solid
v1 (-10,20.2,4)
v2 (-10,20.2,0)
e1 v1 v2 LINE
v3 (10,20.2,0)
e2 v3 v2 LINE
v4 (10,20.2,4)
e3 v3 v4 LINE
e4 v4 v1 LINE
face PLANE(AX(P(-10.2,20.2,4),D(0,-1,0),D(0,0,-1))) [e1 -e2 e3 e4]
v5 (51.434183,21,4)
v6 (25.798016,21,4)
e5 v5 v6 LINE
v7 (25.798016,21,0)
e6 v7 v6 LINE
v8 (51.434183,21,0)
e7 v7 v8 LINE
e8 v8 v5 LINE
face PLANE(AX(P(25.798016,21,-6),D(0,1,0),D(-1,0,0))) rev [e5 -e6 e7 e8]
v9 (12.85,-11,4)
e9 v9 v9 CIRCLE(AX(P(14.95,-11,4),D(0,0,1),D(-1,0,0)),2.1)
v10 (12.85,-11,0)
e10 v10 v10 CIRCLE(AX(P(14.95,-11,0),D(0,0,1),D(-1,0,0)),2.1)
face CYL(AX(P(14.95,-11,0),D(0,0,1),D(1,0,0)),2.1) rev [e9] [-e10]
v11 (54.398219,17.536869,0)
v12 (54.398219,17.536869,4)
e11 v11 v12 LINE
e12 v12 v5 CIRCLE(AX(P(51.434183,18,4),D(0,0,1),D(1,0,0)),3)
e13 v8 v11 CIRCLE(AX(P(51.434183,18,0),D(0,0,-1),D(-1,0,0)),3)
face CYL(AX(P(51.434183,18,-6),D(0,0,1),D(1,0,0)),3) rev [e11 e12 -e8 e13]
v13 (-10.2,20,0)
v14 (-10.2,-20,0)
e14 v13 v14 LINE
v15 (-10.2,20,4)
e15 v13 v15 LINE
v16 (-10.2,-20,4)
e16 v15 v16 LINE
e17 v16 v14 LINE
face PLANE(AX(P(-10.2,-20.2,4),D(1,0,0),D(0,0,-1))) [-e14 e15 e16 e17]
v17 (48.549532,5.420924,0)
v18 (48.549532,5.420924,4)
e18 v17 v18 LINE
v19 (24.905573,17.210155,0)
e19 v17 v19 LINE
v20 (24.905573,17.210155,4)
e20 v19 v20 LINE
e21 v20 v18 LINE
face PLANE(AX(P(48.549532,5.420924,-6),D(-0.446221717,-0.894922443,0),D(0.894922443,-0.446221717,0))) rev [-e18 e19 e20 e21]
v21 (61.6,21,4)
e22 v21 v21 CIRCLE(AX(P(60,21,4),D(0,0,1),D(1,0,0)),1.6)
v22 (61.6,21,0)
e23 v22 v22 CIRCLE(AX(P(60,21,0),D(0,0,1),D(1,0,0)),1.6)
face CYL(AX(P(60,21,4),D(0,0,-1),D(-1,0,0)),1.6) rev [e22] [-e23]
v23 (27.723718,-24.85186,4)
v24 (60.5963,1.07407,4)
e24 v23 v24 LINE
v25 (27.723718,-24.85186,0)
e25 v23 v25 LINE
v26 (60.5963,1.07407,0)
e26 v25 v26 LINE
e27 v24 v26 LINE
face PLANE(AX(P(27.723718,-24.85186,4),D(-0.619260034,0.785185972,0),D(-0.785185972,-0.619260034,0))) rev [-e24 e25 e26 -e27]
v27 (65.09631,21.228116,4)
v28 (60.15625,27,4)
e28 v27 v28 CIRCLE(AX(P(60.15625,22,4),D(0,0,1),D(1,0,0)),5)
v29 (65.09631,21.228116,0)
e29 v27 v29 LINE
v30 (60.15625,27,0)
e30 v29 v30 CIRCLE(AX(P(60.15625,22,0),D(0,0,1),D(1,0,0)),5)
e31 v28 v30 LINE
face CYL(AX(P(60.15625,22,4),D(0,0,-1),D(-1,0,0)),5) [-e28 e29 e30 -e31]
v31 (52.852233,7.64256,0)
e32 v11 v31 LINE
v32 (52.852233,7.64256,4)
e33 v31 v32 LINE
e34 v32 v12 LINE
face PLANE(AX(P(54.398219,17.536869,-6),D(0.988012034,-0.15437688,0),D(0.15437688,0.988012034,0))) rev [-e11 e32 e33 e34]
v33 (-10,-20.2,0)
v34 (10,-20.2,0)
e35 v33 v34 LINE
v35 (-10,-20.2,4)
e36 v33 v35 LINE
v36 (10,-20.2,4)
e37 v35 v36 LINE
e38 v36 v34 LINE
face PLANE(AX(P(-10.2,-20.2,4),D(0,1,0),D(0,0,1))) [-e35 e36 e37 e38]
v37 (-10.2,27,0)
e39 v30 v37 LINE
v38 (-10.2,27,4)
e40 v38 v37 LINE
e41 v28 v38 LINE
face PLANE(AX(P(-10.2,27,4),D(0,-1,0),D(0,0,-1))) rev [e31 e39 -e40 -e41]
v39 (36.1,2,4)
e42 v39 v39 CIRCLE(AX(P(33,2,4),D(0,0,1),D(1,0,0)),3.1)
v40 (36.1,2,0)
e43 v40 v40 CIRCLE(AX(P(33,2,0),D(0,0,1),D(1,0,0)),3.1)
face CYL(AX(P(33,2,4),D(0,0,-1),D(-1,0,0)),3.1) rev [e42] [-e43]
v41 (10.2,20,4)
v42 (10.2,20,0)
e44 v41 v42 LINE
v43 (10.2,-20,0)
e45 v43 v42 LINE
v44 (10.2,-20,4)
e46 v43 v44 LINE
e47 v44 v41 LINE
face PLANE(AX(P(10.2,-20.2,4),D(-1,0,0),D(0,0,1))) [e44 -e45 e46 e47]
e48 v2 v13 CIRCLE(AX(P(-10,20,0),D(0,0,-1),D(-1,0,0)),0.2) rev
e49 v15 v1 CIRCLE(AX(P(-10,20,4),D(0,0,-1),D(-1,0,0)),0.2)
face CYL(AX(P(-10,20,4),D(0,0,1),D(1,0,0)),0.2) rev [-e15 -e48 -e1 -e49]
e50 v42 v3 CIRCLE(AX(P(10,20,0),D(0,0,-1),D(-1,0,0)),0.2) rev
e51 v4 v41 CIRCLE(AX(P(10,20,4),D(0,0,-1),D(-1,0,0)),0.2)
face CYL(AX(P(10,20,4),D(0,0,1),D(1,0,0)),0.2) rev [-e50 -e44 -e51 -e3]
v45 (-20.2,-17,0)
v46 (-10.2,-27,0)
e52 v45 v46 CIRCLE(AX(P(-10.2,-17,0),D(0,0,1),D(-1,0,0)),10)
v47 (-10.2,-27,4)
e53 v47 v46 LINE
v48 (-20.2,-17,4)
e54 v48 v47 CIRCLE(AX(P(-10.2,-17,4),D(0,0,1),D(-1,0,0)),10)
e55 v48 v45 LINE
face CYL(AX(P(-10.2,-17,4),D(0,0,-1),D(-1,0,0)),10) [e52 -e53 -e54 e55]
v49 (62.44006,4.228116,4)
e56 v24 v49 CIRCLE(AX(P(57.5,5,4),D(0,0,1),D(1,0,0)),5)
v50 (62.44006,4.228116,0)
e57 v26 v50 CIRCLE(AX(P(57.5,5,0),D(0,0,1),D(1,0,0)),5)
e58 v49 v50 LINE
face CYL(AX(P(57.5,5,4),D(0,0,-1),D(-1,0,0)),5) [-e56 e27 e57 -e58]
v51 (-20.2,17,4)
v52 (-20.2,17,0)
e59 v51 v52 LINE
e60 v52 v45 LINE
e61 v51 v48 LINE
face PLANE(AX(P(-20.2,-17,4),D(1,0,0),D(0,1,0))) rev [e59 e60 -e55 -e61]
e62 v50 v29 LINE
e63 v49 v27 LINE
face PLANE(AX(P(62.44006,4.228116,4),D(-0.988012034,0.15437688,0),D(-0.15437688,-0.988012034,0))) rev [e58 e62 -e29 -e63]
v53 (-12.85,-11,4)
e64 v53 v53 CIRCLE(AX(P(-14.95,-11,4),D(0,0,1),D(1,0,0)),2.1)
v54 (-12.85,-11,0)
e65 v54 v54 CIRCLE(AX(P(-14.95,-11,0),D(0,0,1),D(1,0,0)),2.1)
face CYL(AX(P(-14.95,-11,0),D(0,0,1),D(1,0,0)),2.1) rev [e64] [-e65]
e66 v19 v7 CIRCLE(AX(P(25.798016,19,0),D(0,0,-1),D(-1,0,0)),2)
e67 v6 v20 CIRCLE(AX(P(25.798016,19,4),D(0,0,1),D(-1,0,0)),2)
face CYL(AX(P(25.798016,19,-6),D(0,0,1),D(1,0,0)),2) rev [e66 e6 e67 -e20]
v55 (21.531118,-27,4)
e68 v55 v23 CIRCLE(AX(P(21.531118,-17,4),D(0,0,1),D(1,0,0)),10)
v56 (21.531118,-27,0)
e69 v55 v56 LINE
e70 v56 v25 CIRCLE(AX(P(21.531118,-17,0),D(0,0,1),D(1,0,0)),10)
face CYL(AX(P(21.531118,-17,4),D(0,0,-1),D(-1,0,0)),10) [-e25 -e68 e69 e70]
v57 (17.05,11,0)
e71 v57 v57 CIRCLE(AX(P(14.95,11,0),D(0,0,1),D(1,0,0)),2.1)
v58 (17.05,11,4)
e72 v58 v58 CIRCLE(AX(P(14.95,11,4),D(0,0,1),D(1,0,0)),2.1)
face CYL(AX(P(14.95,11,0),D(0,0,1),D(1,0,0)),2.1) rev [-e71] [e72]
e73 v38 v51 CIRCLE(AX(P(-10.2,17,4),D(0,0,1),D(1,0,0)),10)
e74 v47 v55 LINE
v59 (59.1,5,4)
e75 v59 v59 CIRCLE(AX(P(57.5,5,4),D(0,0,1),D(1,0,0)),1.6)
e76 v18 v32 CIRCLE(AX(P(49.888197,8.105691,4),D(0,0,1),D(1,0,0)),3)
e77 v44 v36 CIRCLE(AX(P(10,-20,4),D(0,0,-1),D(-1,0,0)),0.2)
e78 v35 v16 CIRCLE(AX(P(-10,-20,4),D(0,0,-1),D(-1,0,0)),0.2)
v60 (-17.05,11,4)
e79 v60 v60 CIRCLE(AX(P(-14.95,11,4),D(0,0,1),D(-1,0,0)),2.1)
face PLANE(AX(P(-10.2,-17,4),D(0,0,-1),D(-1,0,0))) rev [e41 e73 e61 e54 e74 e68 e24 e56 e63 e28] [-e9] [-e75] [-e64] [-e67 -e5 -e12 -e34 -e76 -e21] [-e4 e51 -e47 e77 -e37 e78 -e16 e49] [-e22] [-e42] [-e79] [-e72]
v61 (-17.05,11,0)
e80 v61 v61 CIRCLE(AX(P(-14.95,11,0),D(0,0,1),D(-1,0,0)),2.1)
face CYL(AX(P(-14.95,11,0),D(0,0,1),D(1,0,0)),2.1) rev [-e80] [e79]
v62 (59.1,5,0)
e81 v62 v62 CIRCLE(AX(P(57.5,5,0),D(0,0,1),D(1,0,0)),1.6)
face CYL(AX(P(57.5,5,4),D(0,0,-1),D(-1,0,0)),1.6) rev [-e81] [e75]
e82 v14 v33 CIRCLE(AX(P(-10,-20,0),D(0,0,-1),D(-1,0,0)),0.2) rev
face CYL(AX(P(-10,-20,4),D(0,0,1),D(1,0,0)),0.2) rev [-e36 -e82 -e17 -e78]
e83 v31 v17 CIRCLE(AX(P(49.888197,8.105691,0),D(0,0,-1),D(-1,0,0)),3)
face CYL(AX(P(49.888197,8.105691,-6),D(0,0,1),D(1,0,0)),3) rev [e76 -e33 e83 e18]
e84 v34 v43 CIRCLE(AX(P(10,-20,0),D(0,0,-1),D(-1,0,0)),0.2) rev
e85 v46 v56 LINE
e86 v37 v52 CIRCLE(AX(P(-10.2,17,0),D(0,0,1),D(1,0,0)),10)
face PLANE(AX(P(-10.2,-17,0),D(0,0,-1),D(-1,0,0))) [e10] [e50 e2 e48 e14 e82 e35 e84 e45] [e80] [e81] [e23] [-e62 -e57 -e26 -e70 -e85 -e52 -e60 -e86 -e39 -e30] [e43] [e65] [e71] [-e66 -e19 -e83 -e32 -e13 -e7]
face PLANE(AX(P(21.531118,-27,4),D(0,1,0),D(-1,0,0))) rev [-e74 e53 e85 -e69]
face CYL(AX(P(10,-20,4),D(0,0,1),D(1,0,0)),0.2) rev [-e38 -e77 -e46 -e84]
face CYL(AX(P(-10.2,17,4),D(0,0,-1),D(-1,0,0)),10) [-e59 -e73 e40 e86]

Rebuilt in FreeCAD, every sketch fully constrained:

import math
import FreeCAD as App
import Part
import Sketcher

V = App.Vector
Q = App.Units.Quantity


def edges_at(feature, points):
    """Names of the edges that pass closest to the given points."""
    edges = feature.Shape.Edges
    near = lambda p: min(range(len(edges)), key=lambda i: edges[i].distToShape(Part.Vertex(*p))[0])
    return sorted({f"Edge{near(p) + 1}" for p in points})

doc = App.newDocument("Part")
body = doc.addObject("PartDesign::Body", "Body")

sketch1 = body.newObject("Sketcher::SketchObject", "Sketch")
sketch1.AttachmentSupport = (doc.getObject("XY_Plane"), [""])
sketch1.MapMode = "FlatFace"
sketch1.addGeometry(Part.LineSegment(V(60.15625, 27, 0), V(-10.2, 27, 0)), False)
sketch1.addGeometry(Part.ArcOfCircle(Part.Circle(V(-10.2, 17, 0), V(0, 0, 1), 10), math.radians(90), math.radians(180)), False)
sketch1.addGeometry(Part.LineSegment(V(-20.2, 17, 0), V(-20.2, -17, 0)), False)
sketch1.addGeometry(Part.ArcOfCircle(Part.Circle(V(-10.2, -17, 0), V(0, 0, 1), 10), math.radians(180), math.radians(270)), False)
sketch1.addGeometry(Part.LineSegment(V(-10.2, -27, 0), V(21.531118, -27, 0)), False)
sketch1.addGeometry(Part.ArcOfCircle(Part.Circle(V(21.531118, -17, 0), V(0, 0, 1), 10), math.radians(-90), math.radians(-51.737882)), False)
sketch1.addGeometry(Part.LineSegment(V(27.723718, -24.85186, 0), V(60.5963, 1.07407, 0)), False)
sketch1.addGeometry(Part.ArcOfCircle(Part.Circle(V(57.5, 5, 0), V(0, 0, 1), 5), math.radians(-51.737882), math.radians(-8.880659)), False)
sketch1.addGeometry(Part.LineSegment(V(62.44006, 4.228116, 0), V(65.09631, 21.228116, 0)), False)
sketch1.addGeometry(Part.ArcOfCircle(Part.Circle(V(60.15625, 22, 0), V(0, 0, 1), 5), math.radians(-8.880659), math.radians(90)), False)
sketch1.addGeometry(Part.LineSegment(V(-10.2, -20.2, 0), V(-10.2, 20.2, 0)), False)
sketch1.addGeometry(Part.LineSegment(V(-10.2, 20.2, 0), V(10.2, 20.2, 0)), False)
sketch1.addGeometry(Part.LineSegment(V(10.2, 20.2, 0), V(10.2, -20.2, 0)), False)
sketch1.addGeometry(Part.LineSegment(V(10.2, -20.2, 0), V(-10.2, -20.2, 0)), False)
sketch1.addGeometry(Part.Circle(V(57.5, 5, 0), V(0, 0, 1), 1.6), False)
sketch1.addGeometry(Part.Circle(V(33, 2, 0), V(0, 0, 1), 3.1), False)
sketch1.addGeometry(Part.Circle(V(60, 21, 0), V(0, 0, 1), 1.6), False)
sketch1.addConstraint(Sketcher.Constraint("Tangent", 0, 2, 1, 1))
sketch1.addConstraint(Sketcher.Constraint("Tangent", 1, 2, 2, 1))
sketch1.addConstraint(Sketcher.Constraint("Tangent", 2, 2, 3, 1))
sketch1.addConstraint(Sketcher.Constraint("Tangent", 3, 2, 4, 1))
sketch1.addConstraint(Sketcher.Constraint("Tangent", 4, 2, 5, 1))
sketch1.addConstraint(Sketcher.Constraint("Tangent", 5, 2, 6, 1))
sketch1.addConstraint(Sketcher.Constraint("Tangent", 6, 2, 7, 1))
sketch1.addConstraint(Sketcher.Constraint("Tangent", 7, 2, 8, 1))
sketch1.addConstraint(Sketcher.Constraint("Tangent", 8, 2, 9, 1))
sketch1.addConstraint(Sketcher.Constraint("Tangent", 9, 2, 0, 1))
sketch1.addConstraint(Sketcher.Constraint("Coincident", 10, 2, 11, 1))
sketch1.addConstraint(Sketcher.Constraint("Coincident", 11, 2, 12, 1))
sketch1.addConstraint(Sketcher.Constraint("Coincident", 12, 2, 13, 1))
sketch1.addConstraint(Sketcher.Constraint("Coincident", 13, 2, 10, 1))
sketch1.addConstraint(Sketcher.Constraint("Horizontal", 0))
sketch1.addConstraint(Sketcher.Constraint("Vertical", 2))
sketch1.addConstraint(Sketcher.Constraint("Horizontal", 4))
sketch1.addConstraint(Sketcher.Constraint("Vertical", 10))
sketch1.addConstraint(Sketcher.Constraint("Horizontal", 11))
sketch1.addConstraint(Sketcher.Constraint("Vertical", 12))
sketch1.addConstraint(Sketcher.Constraint("Horizontal", 13))
sketch1.addConstraint(Sketcher.Constraint("Coincident", 14, 3, 7, 3))
sketch1.addConstraint(Sketcher.Constraint("Equal", 1, 3))
sketch1.addConstraint(Sketcher.Constraint("Equal", 3, 5))
sketch1.addConstraint(Sketcher.Constraint("Equal", 7, 9))
sketch1.addConstraint(Sketcher.Constraint("Equal", 14, 16))
sketch1.addConstraint(Sketcher.Constraint("Symmetric", 10, 2, 12, 2, -1, 1))
sketch1.addConstraint(Sketcher.Constraint("Vertical", 3, 2, 10, 2))
sketch1.addConstraint(Sketcher.Constraint("Radius", 1, Q("10 mm")))
sketch1.addConstraint(Sketcher.Constraint("Radius", 7, Q("5 mm")))
sketch1.addConstraint(Sketcher.Constraint("Diameter", 14, Q("3.2 mm")))
sketch1.addConstraint(Sketcher.Constraint("Diameter", 15, Q("6.2 mm")))
sketch1.addConstraint(Sketcher.Constraint("DistanceY", 2, 2, 2, 1, Q("34 mm")))
sketch1.addConstraint(Sketcher.Constraint("DistanceX", 11, 1, 11, 2, Q("20.4 mm")))
sketch1.addConstraint(Sketcher.Constraint("DistanceY", 10, 1, 10, 2, Q("40.4 mm")))
sketch1.addConstraint(Sketcher.Constraint("DistanceY", -1, 1, 1, 3, Q("17 mm")))
sketch1.addConstraint(Sketcher.Constraint("DistanceY", -1, 1, 7, 3, Q("5 mm")))
sketch1.addConstraint(Sketcher.Constraint("DistanceX", -1, 1, 15, 3, Q("33 mm")))
sketch1.addConstraint(Sketcher.Constraint("DistanceY", -1, 1, 15, 3, Q("2 mm")))
sketch1.addConstraint(Sketcher.Constraint("DistanceX", -1, 1, 16, 3, Q("60 mm")))
sketch1.addConstraint(Sketcher.Constraint("DistanceY", -1, 1, 16, 3, Q("21 mm")))
sketch1.addConstraint(Sketcher.Constraint("DistanceX", -1, 1, 7, 3, Q("57.5 mm")))
sketch1.addConstraint(Sketcher.Constraint("DistanceX", 0, 2, 0, 1, Q("70.35625 mm")))
sketch1.addConstraint(Sketcher.Constraint("DistanceX", -1, 1, 6, 2, Q("60.5963 mm")))
pad1 = body.newObject("PartDesign::Pad", "Pad")
pad1.Profile = sketch1
pad1.Length = 4
doc.recompute()

fillet = body.newObject("PartDesign::Fillet", "Fillet")
fillet.Base = (pad1, edges_at(pad1, [
    (-10.2, 20.2, 2),
    (-10.2, -20.2, 2),
    (10.2, -20.2, 2),
    (10.2, 20.2, 2),
]))
fillet.Radius = 0.2

sketch2 = body.newObject("Sketcher::SketchObject", "Sketch001")
sketch2.AttachmentSupport = (doc.getObject("XY_Plane"), [""])
sketch2.MapMode = "FlatFace"
sketch2.AttachmentOffset = App.Placement(V(0, 0, 4), App.Rotation())
sketch2.addGeometry(Part.Circle(V(14.95, 11, 0), V(0, 0, 1), 2.1), False)
sketch2.addGeometry(Part.Circle(V(14.95, -11, 0), V(0, 0, 1), 2.1), False)
sketch2.addGeometry(Part.Circle(V(-14.95, -11, 0), V(0, 0, 1), 2.1), False)
sketch2.addGeometry(Part.Circle(V(-14.95, 11, 0), V(0, 0, 1), 2.1), False)
sketch2.addConstraint(Sketcher.Constraint("Equal", 0, 1))
sketch2.addConstraint(Sketcher.Constraint("Equal", 1, 2))
sketch2.addConstraint(Sketcher.Constraint("Equal", 2, 3))
sketch2.addConstraint(Sketcher.Constraint("Symmetric", 0, 3, 2, 3, -1, 1))
sketch2.addConstraint(Sketcher.Constraint("Symmetric", 1, 3, 3, 3, -1, 1))
sketch2.addConstraint(Sketcher.Constraint("Symmetric", 1, 3, 2, 3, -2))
sketch2.addConstraint(Sketcher.Constraint("Diameter", 0, Q("4.2 mm")))
sketch2.addConstraint(Sketcher.Constraint("DistanceY", -1, 1, 0, 3, Q("11 mm")))
sketch2.addConstraint(Sketcher.Constraint("DistanceX", 2, 3, 1, 3, Q("29.9 mm")))
pocket1 = body.newObject("PartDesign::Pocket", "Pocket")
pocket1.Profile = sketch2
pocket1.Length = 4

sketch3 = body.newObject("Sketcher::SketchObject", "Sketch002")
sketch3.AttachmentSupport = (doc.getObject("XY_Plane"), [""])
sketch3.MapMode = "FlatFace"
sketch3.AttachmentOffset = App.Placement(V(0, 0, 4), App.Rotation())
sketch3.addGeometry(Part.LineSegment(V(51.434183, 21, 0), V(25.798016, 21, 0)), False)
sketch3.addGeometry(Part.ArcOfCircle(Part.Circle(V(25.798016, 19, 0), V(0, 0, 1), 2), math.radians(90), math.radians(243.49847)), False)
sketch3.addGeometry(Part.LineSegment(V(24.905573, 17.210155, 0), V(48.549532, 5.420924, 0)), False)
sketch3.addGeometry(Part.ArcOfCircle(Part.Circle(V(49.888197, 8.105691, 0), V(0, 0, 1), 3), math.radians(-116.50153), math.radians(-8.880659)), False)
sketch3.addGeometry(Part.LineSegment(V(52.852233, 7.64256, 0), V(54.398219, 17.536869, 0)), False)
sketch3.addGeometry(Part.ArcOfCircle(Part.Circle(V(51.434183, 18, 0), V(0, 0, 1), 3), math.radians(-8.880659), math.radians(90)), False)
sketch3.addConstraint(Sketcher.Constraint("Tangent", 0, 2, 1, 1))
sketch3.addConstraint(Sketcher.Constraint("Tangent", 1, 2, 2, 1))
sketch3.addConstraint(Sketcher.Constraint("Tangent", 2, 2, 3, 1))
sketch3.addConstraint(Sketcher.Constraint("Tangent", 3, 2, 4, 1))
sketch3.addConstraint(Sketcher.Constraint("Tangent", 4, 2, 5, 1))
sketch3.addConstraint(Sketcher.Constraint("Tangent", 5, 2, 0, 1))
sketch3.addConstraint(Sketcher.Constraint("Horizontal", 0))
sketch3.addConstraint(Sketcher.Constraint("Equal", 3, 5))
sketch3.addConstraint(Sketcher.Constraint("Radius", 1, Q("2 mm")))
sketch3.addConstraint(Sketcher.Constraint("Radius", 3, Q("3 mm")))
sketch3.addConstraint(Sketcher.Constraint("DistanceY", -1, 1, 1, 3, Q("19 mm")))
sketch3.addConstraint(Sketcher.Constraint("DistanceX", 2, 2, 3, 2, Q("4.302701 mm")))
sketch3.addConstraint(Sketcher.Constraint("Distance", 2, Q("26.420121 mm")))
sketch3.addConstraint(Sketcher.Constraint("Distance", 4, Q("10.014361 mm")))
sketch3.addConstraint(Sketcher.Constraint("DistanceX", -1, 1, 2, 2, Q("48.549532 mm")))
pocket2 = body.newObject("PartDesign::Pocket", "Pocket001")
pocket2.Profile = sketch3
pocket2.Length = 10

doc.recompute()
